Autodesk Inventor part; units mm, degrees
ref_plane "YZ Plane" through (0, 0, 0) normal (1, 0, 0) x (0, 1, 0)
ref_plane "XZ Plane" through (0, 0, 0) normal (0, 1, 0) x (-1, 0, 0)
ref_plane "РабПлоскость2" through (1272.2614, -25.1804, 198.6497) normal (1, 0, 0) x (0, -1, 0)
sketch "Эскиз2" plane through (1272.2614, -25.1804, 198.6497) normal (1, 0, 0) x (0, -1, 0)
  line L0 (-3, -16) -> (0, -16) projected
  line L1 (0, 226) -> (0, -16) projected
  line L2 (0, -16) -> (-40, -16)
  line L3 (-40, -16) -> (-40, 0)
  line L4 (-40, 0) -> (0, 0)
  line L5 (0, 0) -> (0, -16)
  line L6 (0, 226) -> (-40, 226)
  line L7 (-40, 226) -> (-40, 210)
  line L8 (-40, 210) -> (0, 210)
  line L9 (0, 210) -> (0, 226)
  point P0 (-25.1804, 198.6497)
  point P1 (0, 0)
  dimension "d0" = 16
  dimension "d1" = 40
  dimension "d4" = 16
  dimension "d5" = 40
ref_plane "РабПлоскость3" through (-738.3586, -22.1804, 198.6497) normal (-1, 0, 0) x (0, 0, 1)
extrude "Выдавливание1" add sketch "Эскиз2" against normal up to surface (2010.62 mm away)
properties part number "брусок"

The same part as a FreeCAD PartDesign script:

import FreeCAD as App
import Part
import Sketcher

doc = App.newDocument("Part")
body = doc.addObject("PartDesign::Body", "Body")
body.AllowCompound = True

sketch1 = body.newObject("Sketcher::SketchObject", "Sketch")
sketch1.AttachmentSupport = (doc.getObject("YZ_Plane"), [""])
sketch1.MapMode = "FlatFace"
sketch1.AttachmentOffset = App.Placement(App.Vector(0, 0, 1272.2614), App.Rotation())
sketch1.addGeometry(Part.LineSegment(App.Vector(15, 215, 0), App.Vector(-25, 215, 0)), False)
sketch1.addGeometry(Part.LineSegment(App.Vector(-25, 215, 0), App.Vector(-25, 199, 0)), False)
sketch1.addGeometry(Part.LineSegment(App.Vector(-25, 199, 0), App.Vector(15, 199, 0)), False)
sketch1.addGeometry(Part.LineSegment(App.Vector(15, 199, 0), App.Vector(15, 215, 0)), False)
sketch1.addGeometry(Part.LineSegment(App.Vector(15, -11, 0), App.Vector(-25, -11, 0)), False)
sketch1.addGeometry(Part.LineSegment(App.Vector(-25, -11, 0), App.Vector(-25, -27, 0)), False)
sketch1.addGeometry(Part.LineSegment(App.Vector(-25, -27, 0), App.Vector(15, -27, 0)), False)
sketch1.addGeometry(Part.LineSegment(App.Vector(15, -27, 0), App.Vector(15, -11, 0)), False)
sketch1.addConstraint(Sketcher.Constraint("Coincident", 0, 2, 1, 1))
sketch1.addConstraint(Sketcher.Constraint("Coincident", 1, 2, 2, 1))
sketch1.addConstraint(Sketcher.Constraint("Coincident", 2, 2, 3, 1))
sketch1.addConstraint(Sketcher.Constraint("Coincident", 3, 2, 0, 1))
sketch1.addConstraint(Sketcher.Constraint("Coincident", 4, 2, 5, 1))
sketch1.addConstraint(Sketcher.Constraint("Coincident", 5, 2, 6, 1))
sketch1.addConstraint(Sketcher.Constraint("Coincident", 6, 2, 7, 1))
sketch1.addConstraint(Sketcher.Constraint("Coincident", 7, 2, 4, 1))
sketch1.addConstraint(Sketcher.Constraint("Horizontal", 0))
sketch1.addConstraint(Sketcher.Constraint("Vertical", 1))
sketch1.addConstraint(Sketcher.Constraint("Horizontal", 2))
sketch1.addConstraint(Sketcher.Constraint("Vertical", 3))
sketch1.addConstraint(Sketcher.Constraint("Horizontal", 4))
sketch1.addConstraint(Sketcher.Constraint("Vertical", 5))
sketch1.addConstraint(Sketcher.Constraint("Horizontal", 6))
sketch1.addConstraint(Sketcher.Constraint("Vertical", 7))
sketch1.addConstraint(Sketcher.Constraint("Vertical", 1, 2, 4, 2))
sketch1.addConstraint(Sketcher.Constraint("Vertical", 3, 2, 6, 2))
sketch1.addConstraint(Sketcher.Constraint("Equal", 3, 5))
sketch1.addConstraint(Sketcher.Constraint("DistanceX", 0, 2, 0, 1, 40.0))
sketch1.addConstraint(Sketcher.Constraint("DistanceY", 1, 2, 1, 1, 16.0))
sketch1.addConstraint(Sketcher.Constraint("DistanceY", 4, 2, 1, 2, 210.0))
sketch1.addConstraint(Sketcher.Constraint("DistanceX", 0, 2, -1, 1, 25.1804))
sketch1.addConstraint(Sketcher.Constraint("DistanceY", -1, 1, 0, 2, 214.6497))
pad1 = body.newObject("PartDesign::Pad", "Pad")
pad1.Profile = sketch1
pad1.Length = 2010.62
pad1.Reversed = True

doc.recompute()
